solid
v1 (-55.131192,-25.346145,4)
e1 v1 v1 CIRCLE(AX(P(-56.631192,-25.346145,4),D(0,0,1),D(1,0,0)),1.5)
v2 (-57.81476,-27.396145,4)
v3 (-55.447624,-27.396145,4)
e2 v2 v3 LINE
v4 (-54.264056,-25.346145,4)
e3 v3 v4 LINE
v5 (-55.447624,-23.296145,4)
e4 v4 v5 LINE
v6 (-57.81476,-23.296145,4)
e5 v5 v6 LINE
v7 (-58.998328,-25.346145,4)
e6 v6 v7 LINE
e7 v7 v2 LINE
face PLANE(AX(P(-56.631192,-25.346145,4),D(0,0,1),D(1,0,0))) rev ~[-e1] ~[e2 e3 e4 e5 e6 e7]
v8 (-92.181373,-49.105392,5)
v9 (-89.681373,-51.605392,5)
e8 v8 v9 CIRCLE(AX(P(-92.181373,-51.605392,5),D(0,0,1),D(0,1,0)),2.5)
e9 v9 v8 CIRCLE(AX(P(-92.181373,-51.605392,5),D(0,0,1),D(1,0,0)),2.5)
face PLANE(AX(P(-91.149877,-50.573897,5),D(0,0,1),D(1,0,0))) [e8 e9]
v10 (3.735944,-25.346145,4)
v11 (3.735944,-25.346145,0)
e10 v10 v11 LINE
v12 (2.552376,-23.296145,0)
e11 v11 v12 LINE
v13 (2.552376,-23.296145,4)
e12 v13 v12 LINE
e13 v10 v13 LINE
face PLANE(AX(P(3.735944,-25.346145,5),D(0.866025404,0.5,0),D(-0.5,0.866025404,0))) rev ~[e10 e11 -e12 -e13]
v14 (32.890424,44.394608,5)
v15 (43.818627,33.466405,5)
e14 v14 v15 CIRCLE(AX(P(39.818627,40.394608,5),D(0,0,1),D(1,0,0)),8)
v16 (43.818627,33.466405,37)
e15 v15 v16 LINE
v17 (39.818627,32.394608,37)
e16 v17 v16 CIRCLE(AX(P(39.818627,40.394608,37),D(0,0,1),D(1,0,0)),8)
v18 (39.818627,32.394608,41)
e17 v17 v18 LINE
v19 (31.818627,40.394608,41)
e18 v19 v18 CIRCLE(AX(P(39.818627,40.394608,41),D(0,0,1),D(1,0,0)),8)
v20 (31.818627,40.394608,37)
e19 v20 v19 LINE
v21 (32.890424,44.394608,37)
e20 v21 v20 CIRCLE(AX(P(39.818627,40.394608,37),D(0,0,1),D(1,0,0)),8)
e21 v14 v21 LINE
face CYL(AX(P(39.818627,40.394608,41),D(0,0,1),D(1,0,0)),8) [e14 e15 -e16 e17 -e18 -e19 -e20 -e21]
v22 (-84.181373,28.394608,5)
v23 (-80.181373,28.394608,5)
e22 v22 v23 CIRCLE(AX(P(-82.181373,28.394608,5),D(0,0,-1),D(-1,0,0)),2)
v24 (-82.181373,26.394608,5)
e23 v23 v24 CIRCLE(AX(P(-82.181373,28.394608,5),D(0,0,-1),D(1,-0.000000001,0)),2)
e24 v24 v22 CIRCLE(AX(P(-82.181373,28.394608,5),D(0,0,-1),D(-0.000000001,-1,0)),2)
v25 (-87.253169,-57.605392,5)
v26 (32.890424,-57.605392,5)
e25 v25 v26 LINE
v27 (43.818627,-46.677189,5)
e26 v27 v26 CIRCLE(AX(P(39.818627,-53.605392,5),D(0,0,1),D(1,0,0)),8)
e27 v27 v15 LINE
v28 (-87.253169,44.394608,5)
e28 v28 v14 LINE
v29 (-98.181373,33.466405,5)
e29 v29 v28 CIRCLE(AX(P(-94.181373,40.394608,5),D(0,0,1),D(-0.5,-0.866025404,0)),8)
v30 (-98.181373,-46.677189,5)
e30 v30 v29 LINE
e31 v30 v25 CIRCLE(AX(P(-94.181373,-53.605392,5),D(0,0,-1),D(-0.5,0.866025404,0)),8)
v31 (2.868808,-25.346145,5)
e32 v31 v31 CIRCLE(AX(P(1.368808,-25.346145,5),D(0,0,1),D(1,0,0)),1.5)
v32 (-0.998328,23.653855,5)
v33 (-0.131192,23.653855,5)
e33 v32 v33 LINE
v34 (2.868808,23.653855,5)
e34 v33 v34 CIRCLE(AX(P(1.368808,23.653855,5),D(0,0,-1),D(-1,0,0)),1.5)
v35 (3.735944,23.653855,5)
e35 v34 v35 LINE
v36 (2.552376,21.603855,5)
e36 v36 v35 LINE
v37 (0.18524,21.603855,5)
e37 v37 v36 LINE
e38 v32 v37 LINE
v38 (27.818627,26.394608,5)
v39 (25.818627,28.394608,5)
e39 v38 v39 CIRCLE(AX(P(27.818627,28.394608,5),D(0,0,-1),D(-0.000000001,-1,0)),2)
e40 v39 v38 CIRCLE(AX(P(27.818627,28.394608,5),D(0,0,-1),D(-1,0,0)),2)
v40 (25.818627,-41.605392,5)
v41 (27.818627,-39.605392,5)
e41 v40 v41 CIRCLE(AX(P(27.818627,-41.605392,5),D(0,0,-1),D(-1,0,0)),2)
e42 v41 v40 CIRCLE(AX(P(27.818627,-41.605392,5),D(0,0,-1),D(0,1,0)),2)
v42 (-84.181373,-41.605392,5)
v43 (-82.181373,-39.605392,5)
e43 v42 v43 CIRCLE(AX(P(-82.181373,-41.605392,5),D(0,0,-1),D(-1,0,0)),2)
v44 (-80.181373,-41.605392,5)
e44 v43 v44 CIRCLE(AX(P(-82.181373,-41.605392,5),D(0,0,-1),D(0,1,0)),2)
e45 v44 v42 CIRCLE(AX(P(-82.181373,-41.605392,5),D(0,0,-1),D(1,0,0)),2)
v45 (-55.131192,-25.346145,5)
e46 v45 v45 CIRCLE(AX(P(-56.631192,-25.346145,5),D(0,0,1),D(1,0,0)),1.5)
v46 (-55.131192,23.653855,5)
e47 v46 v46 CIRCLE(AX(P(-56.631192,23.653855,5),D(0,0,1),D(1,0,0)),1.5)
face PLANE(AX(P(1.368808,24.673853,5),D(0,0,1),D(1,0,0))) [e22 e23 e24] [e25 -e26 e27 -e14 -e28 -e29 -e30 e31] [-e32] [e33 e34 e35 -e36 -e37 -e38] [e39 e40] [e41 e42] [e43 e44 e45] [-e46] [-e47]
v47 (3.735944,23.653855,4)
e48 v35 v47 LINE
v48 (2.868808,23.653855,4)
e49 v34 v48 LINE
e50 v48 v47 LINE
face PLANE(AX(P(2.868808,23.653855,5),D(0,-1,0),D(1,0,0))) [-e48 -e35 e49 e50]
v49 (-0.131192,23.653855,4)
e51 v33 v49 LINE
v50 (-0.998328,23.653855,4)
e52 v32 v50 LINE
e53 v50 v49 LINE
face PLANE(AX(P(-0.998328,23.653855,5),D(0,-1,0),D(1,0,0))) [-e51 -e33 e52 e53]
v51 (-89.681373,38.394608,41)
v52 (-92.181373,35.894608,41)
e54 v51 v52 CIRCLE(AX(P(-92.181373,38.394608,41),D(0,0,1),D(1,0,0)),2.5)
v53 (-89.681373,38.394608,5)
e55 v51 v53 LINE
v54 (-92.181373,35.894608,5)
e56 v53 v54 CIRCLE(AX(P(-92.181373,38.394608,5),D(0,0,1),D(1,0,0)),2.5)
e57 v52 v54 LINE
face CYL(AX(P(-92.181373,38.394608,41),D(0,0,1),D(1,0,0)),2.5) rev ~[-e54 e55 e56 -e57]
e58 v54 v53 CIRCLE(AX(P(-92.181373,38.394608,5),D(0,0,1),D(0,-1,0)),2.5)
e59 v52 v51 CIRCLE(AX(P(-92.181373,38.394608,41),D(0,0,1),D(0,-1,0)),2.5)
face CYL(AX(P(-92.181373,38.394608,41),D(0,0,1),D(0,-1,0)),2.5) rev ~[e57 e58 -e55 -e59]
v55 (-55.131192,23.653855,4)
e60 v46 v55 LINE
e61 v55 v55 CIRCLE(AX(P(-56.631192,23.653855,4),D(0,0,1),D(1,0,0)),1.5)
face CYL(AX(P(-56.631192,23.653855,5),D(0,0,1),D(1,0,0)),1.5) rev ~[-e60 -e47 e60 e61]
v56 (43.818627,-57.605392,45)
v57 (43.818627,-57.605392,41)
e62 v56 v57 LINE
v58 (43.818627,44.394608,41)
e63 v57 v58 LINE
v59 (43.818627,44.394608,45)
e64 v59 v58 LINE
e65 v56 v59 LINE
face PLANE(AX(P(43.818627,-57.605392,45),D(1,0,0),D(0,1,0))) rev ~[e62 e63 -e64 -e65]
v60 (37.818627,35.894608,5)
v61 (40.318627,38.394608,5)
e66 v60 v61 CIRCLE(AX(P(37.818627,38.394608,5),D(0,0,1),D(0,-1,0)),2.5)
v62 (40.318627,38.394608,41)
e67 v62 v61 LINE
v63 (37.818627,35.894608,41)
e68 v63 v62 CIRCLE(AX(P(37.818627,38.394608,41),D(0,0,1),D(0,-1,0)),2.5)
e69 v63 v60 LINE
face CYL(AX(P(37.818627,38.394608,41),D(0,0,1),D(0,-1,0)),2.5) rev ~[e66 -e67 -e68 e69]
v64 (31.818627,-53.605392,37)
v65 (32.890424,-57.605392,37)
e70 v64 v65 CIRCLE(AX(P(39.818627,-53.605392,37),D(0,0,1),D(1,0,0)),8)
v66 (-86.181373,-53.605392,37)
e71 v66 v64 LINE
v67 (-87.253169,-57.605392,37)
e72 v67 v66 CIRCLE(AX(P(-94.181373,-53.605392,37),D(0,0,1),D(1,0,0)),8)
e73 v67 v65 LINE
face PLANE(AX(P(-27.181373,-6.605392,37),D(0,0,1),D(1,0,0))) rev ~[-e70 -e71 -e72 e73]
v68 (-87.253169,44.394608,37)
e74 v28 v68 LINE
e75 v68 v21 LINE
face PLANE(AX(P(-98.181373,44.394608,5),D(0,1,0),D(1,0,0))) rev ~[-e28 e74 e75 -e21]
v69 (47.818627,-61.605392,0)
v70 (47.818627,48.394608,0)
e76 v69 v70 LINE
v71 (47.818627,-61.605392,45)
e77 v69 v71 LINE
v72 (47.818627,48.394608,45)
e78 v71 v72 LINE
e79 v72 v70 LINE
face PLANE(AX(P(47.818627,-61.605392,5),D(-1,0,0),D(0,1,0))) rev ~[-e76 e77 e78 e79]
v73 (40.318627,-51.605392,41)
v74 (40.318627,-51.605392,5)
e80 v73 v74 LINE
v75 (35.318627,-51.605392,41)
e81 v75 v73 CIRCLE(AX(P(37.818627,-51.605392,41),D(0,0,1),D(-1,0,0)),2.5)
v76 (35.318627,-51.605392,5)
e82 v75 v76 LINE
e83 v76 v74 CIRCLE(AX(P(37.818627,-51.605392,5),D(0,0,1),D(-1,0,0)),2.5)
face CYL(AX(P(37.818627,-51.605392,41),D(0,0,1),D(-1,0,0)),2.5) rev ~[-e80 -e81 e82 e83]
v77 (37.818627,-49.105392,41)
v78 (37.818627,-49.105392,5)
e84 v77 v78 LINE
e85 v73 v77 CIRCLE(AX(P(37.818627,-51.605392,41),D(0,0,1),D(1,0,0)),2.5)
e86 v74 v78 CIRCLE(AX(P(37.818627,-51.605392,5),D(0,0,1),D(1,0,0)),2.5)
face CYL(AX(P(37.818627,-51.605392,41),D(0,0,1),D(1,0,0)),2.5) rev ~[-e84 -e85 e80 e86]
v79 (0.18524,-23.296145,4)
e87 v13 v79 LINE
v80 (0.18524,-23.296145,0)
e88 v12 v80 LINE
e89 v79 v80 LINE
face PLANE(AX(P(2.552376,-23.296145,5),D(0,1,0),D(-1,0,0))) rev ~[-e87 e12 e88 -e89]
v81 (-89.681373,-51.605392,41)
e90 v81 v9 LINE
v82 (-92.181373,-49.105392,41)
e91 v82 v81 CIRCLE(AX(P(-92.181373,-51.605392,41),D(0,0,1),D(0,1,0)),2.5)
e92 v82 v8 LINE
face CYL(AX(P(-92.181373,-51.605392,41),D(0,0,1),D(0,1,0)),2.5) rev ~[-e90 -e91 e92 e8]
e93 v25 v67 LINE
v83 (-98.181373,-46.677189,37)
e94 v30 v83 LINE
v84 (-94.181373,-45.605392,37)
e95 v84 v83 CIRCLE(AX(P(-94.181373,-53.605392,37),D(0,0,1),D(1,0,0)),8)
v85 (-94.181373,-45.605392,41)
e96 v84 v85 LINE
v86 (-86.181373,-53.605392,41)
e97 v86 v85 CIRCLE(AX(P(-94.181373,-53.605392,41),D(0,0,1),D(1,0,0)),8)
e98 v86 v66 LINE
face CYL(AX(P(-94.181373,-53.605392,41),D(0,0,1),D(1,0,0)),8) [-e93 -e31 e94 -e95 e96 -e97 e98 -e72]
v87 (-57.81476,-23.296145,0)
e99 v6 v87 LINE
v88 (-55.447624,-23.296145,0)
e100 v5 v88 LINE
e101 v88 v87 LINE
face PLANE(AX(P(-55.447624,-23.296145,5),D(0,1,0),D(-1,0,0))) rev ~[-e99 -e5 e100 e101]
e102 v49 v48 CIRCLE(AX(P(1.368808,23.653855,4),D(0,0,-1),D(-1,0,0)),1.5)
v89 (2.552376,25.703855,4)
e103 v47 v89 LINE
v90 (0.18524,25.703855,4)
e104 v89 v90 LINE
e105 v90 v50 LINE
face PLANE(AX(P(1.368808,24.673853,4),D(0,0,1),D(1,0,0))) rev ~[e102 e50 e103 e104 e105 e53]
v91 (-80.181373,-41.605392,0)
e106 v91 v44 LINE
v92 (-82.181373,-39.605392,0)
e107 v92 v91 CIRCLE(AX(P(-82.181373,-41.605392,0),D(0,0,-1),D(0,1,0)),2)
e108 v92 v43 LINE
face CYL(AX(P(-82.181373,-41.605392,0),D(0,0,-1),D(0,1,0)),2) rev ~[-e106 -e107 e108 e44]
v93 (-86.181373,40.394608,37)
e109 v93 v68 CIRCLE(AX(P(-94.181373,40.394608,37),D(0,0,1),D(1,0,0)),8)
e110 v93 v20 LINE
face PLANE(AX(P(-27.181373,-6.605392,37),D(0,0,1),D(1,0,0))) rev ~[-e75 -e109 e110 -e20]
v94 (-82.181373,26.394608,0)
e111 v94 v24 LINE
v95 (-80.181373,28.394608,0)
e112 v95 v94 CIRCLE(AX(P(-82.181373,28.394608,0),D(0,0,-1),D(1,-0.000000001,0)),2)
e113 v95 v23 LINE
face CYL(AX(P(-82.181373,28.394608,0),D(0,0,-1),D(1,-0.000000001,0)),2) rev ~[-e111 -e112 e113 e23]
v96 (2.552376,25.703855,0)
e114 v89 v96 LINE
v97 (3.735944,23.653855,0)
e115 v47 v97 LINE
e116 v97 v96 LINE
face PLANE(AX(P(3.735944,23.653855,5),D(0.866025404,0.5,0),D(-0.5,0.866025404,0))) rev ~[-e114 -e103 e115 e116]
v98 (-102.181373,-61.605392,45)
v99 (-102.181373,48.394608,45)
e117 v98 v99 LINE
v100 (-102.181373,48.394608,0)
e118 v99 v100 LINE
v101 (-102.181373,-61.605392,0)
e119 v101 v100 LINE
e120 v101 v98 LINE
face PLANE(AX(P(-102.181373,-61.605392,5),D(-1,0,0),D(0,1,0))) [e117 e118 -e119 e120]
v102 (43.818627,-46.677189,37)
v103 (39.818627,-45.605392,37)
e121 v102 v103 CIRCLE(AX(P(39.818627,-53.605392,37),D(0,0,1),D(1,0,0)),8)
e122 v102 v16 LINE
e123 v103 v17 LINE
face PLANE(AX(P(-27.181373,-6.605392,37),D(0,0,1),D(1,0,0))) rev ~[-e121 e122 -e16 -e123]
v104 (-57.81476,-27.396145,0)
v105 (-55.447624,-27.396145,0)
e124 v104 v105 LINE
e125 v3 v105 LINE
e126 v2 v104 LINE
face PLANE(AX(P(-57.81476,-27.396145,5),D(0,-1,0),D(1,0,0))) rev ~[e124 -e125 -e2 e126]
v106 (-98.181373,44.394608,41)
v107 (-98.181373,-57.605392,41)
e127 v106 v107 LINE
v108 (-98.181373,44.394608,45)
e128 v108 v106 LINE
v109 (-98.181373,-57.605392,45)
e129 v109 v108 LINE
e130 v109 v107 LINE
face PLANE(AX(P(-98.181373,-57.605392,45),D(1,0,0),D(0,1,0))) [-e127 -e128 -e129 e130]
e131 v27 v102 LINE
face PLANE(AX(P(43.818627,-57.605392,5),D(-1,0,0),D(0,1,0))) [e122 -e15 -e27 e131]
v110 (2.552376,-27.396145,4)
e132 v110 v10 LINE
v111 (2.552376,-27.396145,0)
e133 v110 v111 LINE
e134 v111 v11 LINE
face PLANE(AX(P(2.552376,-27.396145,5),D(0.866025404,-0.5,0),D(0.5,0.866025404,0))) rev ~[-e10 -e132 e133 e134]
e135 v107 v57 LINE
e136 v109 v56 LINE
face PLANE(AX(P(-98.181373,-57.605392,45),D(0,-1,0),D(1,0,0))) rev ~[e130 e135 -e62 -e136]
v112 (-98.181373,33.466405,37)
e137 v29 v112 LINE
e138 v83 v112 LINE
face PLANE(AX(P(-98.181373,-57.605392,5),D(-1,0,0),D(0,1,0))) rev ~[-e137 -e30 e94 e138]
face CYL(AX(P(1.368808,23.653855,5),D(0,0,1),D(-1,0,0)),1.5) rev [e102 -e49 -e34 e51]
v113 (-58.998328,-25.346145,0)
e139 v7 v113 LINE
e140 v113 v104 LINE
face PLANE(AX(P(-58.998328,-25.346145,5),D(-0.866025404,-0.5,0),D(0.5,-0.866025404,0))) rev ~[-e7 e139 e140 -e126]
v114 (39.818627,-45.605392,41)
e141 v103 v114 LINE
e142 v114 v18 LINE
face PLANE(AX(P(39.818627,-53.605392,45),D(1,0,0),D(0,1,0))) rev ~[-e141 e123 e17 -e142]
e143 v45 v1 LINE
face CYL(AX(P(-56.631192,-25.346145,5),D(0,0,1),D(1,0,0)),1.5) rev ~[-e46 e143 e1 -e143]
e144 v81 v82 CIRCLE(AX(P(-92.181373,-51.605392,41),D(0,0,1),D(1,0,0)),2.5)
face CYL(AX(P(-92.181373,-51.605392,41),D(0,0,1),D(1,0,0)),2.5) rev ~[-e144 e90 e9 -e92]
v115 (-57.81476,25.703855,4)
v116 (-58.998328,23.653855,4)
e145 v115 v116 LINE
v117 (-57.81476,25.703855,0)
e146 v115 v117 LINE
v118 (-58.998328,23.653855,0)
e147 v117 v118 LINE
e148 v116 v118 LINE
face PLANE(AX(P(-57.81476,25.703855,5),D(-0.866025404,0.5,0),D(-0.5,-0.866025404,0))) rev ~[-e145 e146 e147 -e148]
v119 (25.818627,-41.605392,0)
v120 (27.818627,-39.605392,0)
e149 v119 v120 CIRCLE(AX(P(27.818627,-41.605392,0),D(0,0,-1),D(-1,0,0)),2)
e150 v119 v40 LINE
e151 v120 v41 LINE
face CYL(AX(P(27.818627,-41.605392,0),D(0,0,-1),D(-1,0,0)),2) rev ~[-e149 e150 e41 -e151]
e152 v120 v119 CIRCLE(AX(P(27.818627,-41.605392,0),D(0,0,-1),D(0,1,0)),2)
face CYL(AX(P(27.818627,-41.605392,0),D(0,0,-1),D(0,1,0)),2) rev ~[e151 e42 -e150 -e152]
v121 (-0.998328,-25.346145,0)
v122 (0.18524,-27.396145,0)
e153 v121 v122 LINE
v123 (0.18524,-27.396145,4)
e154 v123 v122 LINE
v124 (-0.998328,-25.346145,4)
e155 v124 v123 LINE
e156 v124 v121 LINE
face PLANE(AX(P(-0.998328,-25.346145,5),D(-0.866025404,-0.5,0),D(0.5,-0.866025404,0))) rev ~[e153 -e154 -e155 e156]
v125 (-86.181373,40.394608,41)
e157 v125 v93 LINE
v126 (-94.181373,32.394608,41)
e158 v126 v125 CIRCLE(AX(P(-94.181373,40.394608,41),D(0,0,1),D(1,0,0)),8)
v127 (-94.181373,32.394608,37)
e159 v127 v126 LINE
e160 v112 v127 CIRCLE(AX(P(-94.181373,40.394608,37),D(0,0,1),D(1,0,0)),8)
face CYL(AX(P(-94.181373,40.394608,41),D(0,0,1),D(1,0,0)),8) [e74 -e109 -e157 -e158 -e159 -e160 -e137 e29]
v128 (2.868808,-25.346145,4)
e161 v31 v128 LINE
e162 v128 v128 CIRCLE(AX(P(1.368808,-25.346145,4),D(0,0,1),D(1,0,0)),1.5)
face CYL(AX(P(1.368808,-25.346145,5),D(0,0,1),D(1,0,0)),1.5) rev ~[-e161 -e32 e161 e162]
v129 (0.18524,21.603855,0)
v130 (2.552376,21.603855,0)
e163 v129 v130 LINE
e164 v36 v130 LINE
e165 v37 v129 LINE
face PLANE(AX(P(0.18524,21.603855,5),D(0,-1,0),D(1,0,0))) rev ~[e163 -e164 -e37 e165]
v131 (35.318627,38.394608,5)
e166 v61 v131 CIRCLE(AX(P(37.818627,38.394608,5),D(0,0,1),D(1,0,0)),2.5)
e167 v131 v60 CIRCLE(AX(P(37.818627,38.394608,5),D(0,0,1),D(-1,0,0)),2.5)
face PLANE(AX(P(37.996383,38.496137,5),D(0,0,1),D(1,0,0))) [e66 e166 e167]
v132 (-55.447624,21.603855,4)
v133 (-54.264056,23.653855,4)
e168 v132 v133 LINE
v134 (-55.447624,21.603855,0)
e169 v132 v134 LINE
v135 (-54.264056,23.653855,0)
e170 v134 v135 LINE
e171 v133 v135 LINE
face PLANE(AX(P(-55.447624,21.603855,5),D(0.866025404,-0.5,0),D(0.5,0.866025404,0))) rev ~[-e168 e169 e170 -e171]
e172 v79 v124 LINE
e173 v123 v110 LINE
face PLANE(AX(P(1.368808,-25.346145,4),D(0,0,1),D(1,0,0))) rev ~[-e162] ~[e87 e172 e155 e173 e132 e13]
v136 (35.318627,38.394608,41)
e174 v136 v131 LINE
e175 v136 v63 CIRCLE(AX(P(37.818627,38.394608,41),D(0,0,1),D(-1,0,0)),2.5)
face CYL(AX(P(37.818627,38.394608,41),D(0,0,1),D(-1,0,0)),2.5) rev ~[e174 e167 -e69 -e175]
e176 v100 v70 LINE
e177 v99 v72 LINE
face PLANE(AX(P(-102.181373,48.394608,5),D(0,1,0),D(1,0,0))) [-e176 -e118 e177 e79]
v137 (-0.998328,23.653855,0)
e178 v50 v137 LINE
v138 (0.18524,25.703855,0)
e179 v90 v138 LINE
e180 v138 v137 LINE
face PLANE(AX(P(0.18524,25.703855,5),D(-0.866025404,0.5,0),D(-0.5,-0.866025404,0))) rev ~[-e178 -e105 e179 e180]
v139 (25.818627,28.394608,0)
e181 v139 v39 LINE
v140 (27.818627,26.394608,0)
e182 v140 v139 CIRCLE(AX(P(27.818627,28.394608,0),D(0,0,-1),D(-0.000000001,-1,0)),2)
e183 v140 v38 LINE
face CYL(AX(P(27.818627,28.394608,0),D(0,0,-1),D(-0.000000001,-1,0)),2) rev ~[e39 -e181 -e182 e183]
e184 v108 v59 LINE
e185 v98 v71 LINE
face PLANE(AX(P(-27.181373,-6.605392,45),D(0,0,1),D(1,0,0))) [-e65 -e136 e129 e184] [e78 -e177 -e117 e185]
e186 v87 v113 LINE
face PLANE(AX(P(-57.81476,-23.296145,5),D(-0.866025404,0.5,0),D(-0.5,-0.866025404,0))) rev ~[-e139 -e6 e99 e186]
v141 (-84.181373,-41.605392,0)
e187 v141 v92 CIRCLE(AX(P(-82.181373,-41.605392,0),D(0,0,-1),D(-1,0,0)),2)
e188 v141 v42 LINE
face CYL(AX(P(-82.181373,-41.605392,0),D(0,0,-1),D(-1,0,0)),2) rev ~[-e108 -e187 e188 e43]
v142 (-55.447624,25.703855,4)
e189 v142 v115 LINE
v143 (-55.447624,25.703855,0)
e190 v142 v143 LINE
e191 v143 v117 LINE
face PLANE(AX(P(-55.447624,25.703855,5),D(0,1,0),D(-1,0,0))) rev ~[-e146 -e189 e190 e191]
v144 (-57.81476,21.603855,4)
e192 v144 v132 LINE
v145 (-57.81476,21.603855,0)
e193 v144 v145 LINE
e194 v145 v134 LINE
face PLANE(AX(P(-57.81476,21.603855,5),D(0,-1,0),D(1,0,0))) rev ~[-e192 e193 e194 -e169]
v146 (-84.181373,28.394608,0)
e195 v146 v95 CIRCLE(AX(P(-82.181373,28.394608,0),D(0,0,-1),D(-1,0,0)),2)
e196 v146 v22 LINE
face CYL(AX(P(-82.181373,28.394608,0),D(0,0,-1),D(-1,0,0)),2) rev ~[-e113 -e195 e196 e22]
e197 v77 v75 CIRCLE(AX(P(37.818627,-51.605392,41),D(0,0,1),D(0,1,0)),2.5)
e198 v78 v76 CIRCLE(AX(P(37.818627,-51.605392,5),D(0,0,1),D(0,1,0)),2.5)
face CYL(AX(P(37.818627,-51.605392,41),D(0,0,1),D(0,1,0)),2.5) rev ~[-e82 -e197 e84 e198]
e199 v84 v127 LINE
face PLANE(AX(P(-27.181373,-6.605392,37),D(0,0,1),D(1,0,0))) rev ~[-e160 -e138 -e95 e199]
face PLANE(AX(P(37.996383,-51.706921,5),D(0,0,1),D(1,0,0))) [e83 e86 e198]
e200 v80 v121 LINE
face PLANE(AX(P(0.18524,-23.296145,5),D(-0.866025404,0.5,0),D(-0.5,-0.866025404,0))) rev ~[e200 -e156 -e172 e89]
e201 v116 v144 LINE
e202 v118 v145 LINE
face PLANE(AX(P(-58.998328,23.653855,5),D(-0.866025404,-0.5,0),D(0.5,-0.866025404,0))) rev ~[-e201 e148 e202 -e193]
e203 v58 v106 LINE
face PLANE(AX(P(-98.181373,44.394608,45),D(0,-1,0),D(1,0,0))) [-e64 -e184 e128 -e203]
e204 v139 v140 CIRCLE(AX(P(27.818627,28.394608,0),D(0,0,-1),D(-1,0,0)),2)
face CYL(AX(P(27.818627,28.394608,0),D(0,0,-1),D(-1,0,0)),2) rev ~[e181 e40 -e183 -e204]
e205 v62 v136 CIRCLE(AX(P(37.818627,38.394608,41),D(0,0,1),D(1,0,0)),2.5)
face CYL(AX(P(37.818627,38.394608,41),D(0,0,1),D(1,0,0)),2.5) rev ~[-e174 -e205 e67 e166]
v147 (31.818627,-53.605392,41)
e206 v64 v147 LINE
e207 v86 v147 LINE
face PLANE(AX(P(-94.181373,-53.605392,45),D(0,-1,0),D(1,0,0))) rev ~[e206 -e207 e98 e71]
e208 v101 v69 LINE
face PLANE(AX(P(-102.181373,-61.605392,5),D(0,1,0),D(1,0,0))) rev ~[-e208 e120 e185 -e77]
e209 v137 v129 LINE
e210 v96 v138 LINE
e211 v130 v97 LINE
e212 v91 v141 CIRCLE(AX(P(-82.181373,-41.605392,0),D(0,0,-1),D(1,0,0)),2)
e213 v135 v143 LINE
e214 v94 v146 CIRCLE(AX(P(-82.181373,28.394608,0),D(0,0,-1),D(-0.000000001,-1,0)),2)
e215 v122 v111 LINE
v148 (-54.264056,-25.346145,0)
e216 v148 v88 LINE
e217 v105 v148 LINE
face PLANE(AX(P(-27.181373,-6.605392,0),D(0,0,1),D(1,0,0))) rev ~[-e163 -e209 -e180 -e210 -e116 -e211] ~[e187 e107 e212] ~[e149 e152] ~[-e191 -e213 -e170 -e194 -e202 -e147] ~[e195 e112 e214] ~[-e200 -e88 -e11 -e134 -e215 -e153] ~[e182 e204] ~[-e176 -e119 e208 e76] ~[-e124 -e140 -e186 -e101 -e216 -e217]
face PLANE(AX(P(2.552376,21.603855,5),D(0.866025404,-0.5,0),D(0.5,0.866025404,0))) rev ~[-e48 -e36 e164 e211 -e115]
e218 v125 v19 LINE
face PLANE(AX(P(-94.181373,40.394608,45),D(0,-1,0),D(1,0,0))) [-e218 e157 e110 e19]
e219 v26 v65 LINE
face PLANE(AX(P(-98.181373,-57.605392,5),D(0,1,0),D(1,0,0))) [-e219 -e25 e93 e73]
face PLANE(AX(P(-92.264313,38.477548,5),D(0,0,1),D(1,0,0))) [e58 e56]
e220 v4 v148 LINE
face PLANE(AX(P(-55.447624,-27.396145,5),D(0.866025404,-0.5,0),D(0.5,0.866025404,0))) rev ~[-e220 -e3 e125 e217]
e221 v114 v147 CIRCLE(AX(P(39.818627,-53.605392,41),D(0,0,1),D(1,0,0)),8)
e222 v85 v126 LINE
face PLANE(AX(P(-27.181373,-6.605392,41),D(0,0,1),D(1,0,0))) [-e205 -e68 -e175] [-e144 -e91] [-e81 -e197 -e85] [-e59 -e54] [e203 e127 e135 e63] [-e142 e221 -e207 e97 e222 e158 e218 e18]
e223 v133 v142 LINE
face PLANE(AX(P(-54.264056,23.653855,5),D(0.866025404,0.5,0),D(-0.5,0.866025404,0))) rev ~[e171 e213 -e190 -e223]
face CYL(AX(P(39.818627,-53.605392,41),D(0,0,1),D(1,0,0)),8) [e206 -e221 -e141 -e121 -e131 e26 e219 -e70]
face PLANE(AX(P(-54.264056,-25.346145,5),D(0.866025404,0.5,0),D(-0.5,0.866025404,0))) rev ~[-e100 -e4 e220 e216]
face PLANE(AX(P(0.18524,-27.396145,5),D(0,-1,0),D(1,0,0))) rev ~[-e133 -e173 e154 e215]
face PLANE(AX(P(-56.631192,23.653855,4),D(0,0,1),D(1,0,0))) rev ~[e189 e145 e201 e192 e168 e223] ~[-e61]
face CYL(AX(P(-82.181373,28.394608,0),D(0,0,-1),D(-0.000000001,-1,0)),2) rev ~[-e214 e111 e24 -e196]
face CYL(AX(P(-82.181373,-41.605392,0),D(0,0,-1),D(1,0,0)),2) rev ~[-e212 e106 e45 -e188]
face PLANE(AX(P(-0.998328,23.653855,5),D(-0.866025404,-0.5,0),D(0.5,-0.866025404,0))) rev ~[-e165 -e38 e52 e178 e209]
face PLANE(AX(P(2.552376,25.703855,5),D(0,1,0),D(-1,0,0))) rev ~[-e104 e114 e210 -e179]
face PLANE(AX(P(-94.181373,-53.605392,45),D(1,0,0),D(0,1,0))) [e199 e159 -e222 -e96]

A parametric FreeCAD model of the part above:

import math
import FreeCAD as App
import Part
import Sketcher
from FreeCAD import Vector
Q = App.Units.Quantity

doc = App.newDocument("Part")
body = doc.addObject("PartDesign::Body", "Body")

sketch1 = doc.addObject("Sketcher::SketchObject", "Sketch")
body.addObject(sketch1)
sketch1.AttachmentSupport = (doc.XY_Plane, [""])
sketch1.MapMode = "FlatFace"
sketch1.addGeometry([
    Part.LineSegment(Vector(-102, 48, 0), Vector(-102, -62, 0)),
    Part.LineSegment(Vector(-102, -62, 0), Vector(48, -62, 0)),
    Part.LineSegment(Vector(48, -62, 0), Vector(48, 48, 0)),
    Part.LineSegment(Vector(48, 48, 0), Vector(-102, 48, 0)),
], False)
sketch1.addConstraint([
    Sketcher.Constraint("Coincident", 0, 2, 1, 1),
    Sketcher.Constraint("Coincident", 1, 2, 2, 1),
    Sketcher.Constraint("Coincident", 2, 2, 3, 1),
    Sketcher.Constraint("Coincident", 3, 2, 0, 1),
    Sketcher.Constraint("Vertical", 0),
    Sketcher.Constraint("Horizontal", 1),
    Sketcher.Constraint("Vertical", 2),
    Sketcher.Constraint("Horizontal", 3),
    Sketcher.Constraint("DistanceX", 1, 1, 1, 2, 150.0),
    Sketcher.Constraint("DistanceY", 0, 2, 0, 1, 110.0),
    Sketcher.Constraint("DistanceX", 0, 2, -1, 1, 102.181373),
    Sketcher.Constraint("DistanceY", 0, 2, -1, 1, 61.605392),
])
pad1 = doc.addObject("PartDesign::Pad", "Pad")
body.addObject(pad1)
pad1.Profile = sketch1
pad1.Length = 5

sketch2 = doc.addObject("Sketcher::SketchObject", "Sketch001")
body.addObject(sketch2)
sketch2.AttachmentSupport = (doc.XY_Plane, [""])
sketch2.MapMode = "FlatFace"
sketch2.AttachmentOffset = App.Placement(Vector(0, 0, 5), App.Rotation())
sketch2.addGeometry([
    Part.LineSegment(Vector(-102, 48, 0), Vector(-102, -62, 0)),
    Part.LineSegment(Vector(-102, -62, 0), Vector(48, -62, 0)),
    Part.LineSegment(Vector(48, -62, 0), Vector(48, 48, 0)),
    Part.LineSegment(Vector(48, 48, 0), Vector(-102, 48, 0)),
    Part.LineSegment(Vector(44, -58, 0), Vector(-98, -58, 0)),
    Part.LineSegment(Vector(-98, -58, 0), Vector(-98, 44, 0)),
    Part.LineSegment(Vector(-98, 44, 0), Vector(44, 44, 0)),
    Part.LineSegment(Vector(44, 44, 0), Vector(44, -58, 0)),
], False)
sketch2.addConstraint([
    Sketcher.Constraint("Coincident", 0, 2, 1, 1),
    Sketcher.Constraint("Coincident", 1, 2, 2, 1),
    Sketcher.Constraint("Coincident", 2, 2, 3, 1),
    Sketcher.Constraint("Coincident", 3, 2, 0, 1),
    Sketcher.Constraint("Coincident", 4, 2, 5, 1),
    Sketcher.Constraint("Coincident", 5, 2, 6, 1),
    Sketcher.Constraint("Coincident", 6, 2, 7, 1),
    Sketcher.Constraint("Coincident", 7, 2, 4, 1),
    Sketcher.Constraint("Vertical", 0),
    Sketcher.Constraint("Horizontal", 1),
    Sketcher.Constraint("Vertical", 2),
    Sketcher.Constraint("Horizontal", 3),
    Sketcher.Constraint("Horizontal", 4),
    Sketcher.Constraint("Vertical", 5),
    Sketcher.Constraint("Horizontal", 6),
    Sketcher.Constraint("Vertical", 7),
    Sketcher.Constraint("DistanceX", 1, 1, 1, 2, 150.0),
    Sketcher.Constraint("DistanceX", 4, 2, 4, 1, 142.0),
    Sketcher.Constraint("DistanceY", 0, 2, 0, 1, 110.0),
    Sketcher.Constraint("DistanceY", 5, 1, 5, 2, 102.0),
    Sketcher.Constraint("DistanceX", 0, 2, 4, 2, 4.0),
    Sketcher.Constraint("DistanceY", 0, 2, 4, 2, 4.0),
    Sketcher.Constraint("DistanceX", 0, 2, -1, 1, 102.181373),
    Sketcher.Constraint("DistanceY", 0, 2, -1, 1, 61.605392),
])
pad2 = doc.addObject("PartDesign::Pad", "Pad001")
body.addObject(pad2)
pad2.Profile = sketch2
pad2.Length = 40

sketch3 = doc.addObject("Sketcher::SketchObject", "Sketch002")
body.addObject(sketch3)
sketch3.AttachmentSupport = (doc.XY_Plane, [""])
sketch3.MapMode = "FlatFace"
sketch3.AttachmentOffset = App.Placement(Vector(0, 0, 5), App.Rotation())
sketch3.addGeometry([
    Part.LineSegment(Vector(-1, -25.3, 0), Vector(0.2, -27.4, 0)),
    Part.LineSegment(Vector(0.2, -27.4, 0), Vector(2.6, -27.4, 0)),
    Part.LineSegment(Vector(2.6, -27.4, 0), Vector(3.7, -25.3, 0)),
    Part.LineSegment(Vector(3.7, -25.3, 0), Vector(2.6, -23.3, 0)),
    Part.LineSegment(Vector(2.6, -23.3, 0), Vector(0.2, -23.3, 0)),
    Part.LineSegment(Vector(0.2, -23.3, 0), Vector(-1, -25.3, 0)),
    Part.LineSegment(Vector(-55.4, -27.4, 0), Vector(-54.3, -25.3, 0)),
    Part.LineSegment(Vector(-54.3, -25.3, 0), Vector(-55.4, -23.3, 0)),
    Part.LineSegment(Vector(-55.4, -23.3, 0), Vector(-57.8, -23.3, 0)),
    Part.LineSegment(Vector(-57.8, -23.3, 0), Vector(-59, -25.3, 0)),
    Part.LineSegment(Vector(-59, -25.3, 0), Vector(-57.8, -27.4, 0)),
    Part.LineSegment(Vector(-57.8, -27.4, 0), Vector(-55.4, -27.4, 0)),
    Part.LineSegment(Vector(0.2, 21.6, 0), Vector(2.6, 21.6, 0)),
    Part.LineSegment(Vector(2.6, 21.6, 0), Vector(3.7, 23.7, 0)),
    Part.LineSegment(Vector(3.7, 23.7, 0), Vector(2.6, 25.7, 0)),
    Part.LineSegment(Vector(2.6, 25.7, 0), Vector(0.2, 25.7, 0)),
    Part.LineSegment(Vector(0.2, 25.7, 0), Vector(-1, 23.7, 0)),
    Part.LineSegment(Vector(-1, 23.7, 0), Vector(0.2, 21.6, 0)),
    Part.LineSegment(Vector(-55.4, 21.6, 0), Vector(-54.3, 23.7, 0)),
    Part.LineSegment(Vector(-54.3, 23.7, 0), Vector(-55.4, 25.7, 0)),
    Part.LineSegment(Vector(-55.4, 25.7, 0), Vector(-57.8, 25.7, 0)),
    Part.LineSegment(Vector(-57.8, 25.7, 0), Vector(-59, 23.7, 0)),
    Part.LineSegment(Vector(-59, 23.7, 0), Vector(-57.8, 21.6, 0)),
    Part.LineSegment(Vector(-57.8, 21.6, 0), Vector(-55.4, 21.6, 0)),
], False)
sketch3.addConstraint([
    Sketcher.Constraint("Coincident", 0, 2, 1, 1),
    Sketcher.Constraint("Coincident", 1, 2, 2, 1),
    Sketcher.Constraint("Coincident", 2, 2, 3, 1),
    Sketcher.Constraint("Coincident", 3, 2, 4, 1),
    Sketcher.Constraint("Coincident", 4, 2, 5, 1),
    Sketcher.Constraint("Coincident", 5, 2, 0, 1),
    Sketcher.Constraint("Coincident", 6, 2, 7, 1),
    Sketcher.Constraint("Coincident", 7, 2, 8, 1),
    Sketcher.Constraint("Coincident", 8, 2, 9, 1),
    Sketcher.Constraint("Coincident", 9, 2, 10, 1),
    Sketcher.Constraint("Coincident", 10, 2, 11, 1),
    Sketcher.Constraint("Coincident", 11, 2, 6, 1),
    Sketcher.Constraint("Coincident", 12, 2, 13, 1),
    Sketcher.Constraint("Coincident", 13, 2, 14, 1),
    Sketcher.Constraint("Coincident", 14, 2, 15, 1),
    Sketcher.Constraint("Coincident", 15, 2, 16, 1),
    Sketcher.Constraint("Coincident", 16, 2, 17, 1),
    Sketcher.Constraint("Coincident", 17, 2, 12, 1),
    Sketcher.Constraint("Coincident", 18, 2, 19, 1),
    Sketcher.Constraint("Coincident", 19, 2, 20, 1),
    Sketcher.Constraint("Coincident", 20, 2, 21, 1),
    Sketcher.Constraint("Coincident", 21, 2, 22, 1),
    Sketcher.Constraint("Coincident", 22, 2, 23, 1),
    Sketcher.Constraint("Coincident", 23, 2, 18, 1),
    Sketcher.Constraint("Horizontal", 1),
    Sketcher.Constraint("Horizontal", 4),
    Sketcher.Constraint("Horizontal", 8),
    Sketcher.Constraint("Horizontal", 11),
    Sketcher.Constraint("Horizontal", 12),
    Sketcher.Constraint("Horizontal", 15),
    Sketcher.Constraint("Horizontal", 20),
    Sketcher.Constraint("Horizontal", 23),
    Sketcher.Constraint("Parallel", 0, 3),
    Sketcher.Constraint("Parallel", 2, 5),
    Sketcher.Constraint("Parallel", 5, 6),
    Sketcher.Constraint("Parallel", 3, 7),
    Sketcher.Constraint("Parallel", 6, 9),
    Sketcher.Constraint("Parallel", 7, 10),
    Sketcher.Constraint("Parallel", 9, 13),
    Sketcher.Constraint("Parallel", 10, 14),
    Sketcher.Constraint("Parallel", 13, 16),
    Sketcher.Constraint("Parallel", 14, 17),
    Sketcher.Constraint("Parallel", 16, 18),
    Sketcher.Constraint("Parallel", 17, 19),
    Sketcher.Constraint("Parallel", 18, 21),
    Sketcher.Constraint("Parallel", 19, 22),
    Sketcher.Constraint("Horizontal", 2, 2, 5, 2),
    Sketcher.Constraint("Horizontal", 5, 2, 6, 2),
    Sketcher.Constraint("Horizontal", 4, 2, 7, 2),
    Sketcher.Constraint("Horizontal", 6, 2, 9, 2),
    Sketcher.Constraint("Horizontal", 1, 2, 10, 2),
    Sketcher.Constraint("Horizontal", 13, 2, 16, 2),
    Sketcher.Constraint("Horizontal", 16, 2, 18, 2),
    Sketcher.Constraint("Horizontal", 15, 2, 19, 2),
    Sketcher.Constraint("Horizontal", 18, 2, 21, 2),
    Sketcher.Constraint("Horizontal", 17, 2, 22, 2),
    Sketcher.Constraint("Vertical", 1, 2, 3, 2),
    Sketcher.Constraint("Vertical", 0, 2, 4, 2),
    Sketcher.Constraint("Vertical", 3, 2, 12, 2),
    Sketcher.Constraint("Vertical", 2, 2, 13, 2),
    Sketcher.Constraint("Vertical", 12, 2, 14, 2),
    Sketcher.Constraint("Vertical", 4, 2, 15, 2),
    Sketcher.Constraint("Vertical", 6, 2, 18, 2),
    Sketcher.Constraint("Vertical", 10, 2, 20, 2),
    Sketcher.Constraint("Equal", 4, 8),
    Sketcher.Constraint("Angle", 0, Q("-60 deg")),
    Sketcher.Constraint("DistanceX", 7, 2, 3, 2, 58.0),
    Sketcher.Constraint("DistanceY", 1, 2, 12, 2, 49.0),
    Sketcher.Constraint("DistanceY", 1, 2, 3, 2, 4.1),
    Sketcher.Constraint("DistanceX", 1, 1, 1, 2, 2.367136),
    Sketcher.Constraint("DistanceX", -1, 1, 0, 2, 0.18524),
    Sketcher.Constraint("DistanceY", 0, 2, -1, 1, 27.396145),
])
pocket1 = doc.addObject("PartDesign::Pocket", "Pocket")
body.addObject(pocket1)
pocket1.Profile = sketch3
pocket1.Type = "ThroughAll"

sketch4 = doc.addObject("Sketcher::SketchObject", "Sketch003")
body.addObject(sketch4)
sketch4.AttachmentSupport = (doc.XY_Plane, [""])
sketch4.MapMode = "FlatFace"
sketch4.AttachmentOffset = App.Placement(Vector(0, 0, 45), App.Rotation())
sketch4.addGeometry([
    Part.LineSegment(Vector(-98, 44, 0), Vector(-98, -58, 0)),
    Part.LineSegment(Vector(-98, -58, 0), Vector(44, -58, 0)),
    Part.LineSegment(Vector(44, -58, 0), Vector(44, 44, 0)),
    Part.LineSegment(Vector(44, 44, 0), Vector(-98, 44, 0)),
    Part.LineSegment(Vector(40, -54, 0), Vector(-94, -54, 0)),
    Part.LineSegment(Vector(-94, -54, 0), Vector(-94, 40, 0)),
    Part.LineSegment(Vector(-94, 40, 0), Vector(40, 40, 0)),
    Part.LineSegment(Vector(40, 40, 0), Vector(40, -54, 0)),
], False)
sketch4.addConstraint([
    Sketcher.Constraint("Coincident", 0, 2, 1, 1),
    Sketcher.Constraint("Coincident", 1, 2, 2, 1),
    Sketcher.Constraint("Coincident", 2, 2, 3, 1),
    Sketcher.Constraint("Coincident", 3, 2, 0, 1),
    Sketcher.Constraint("Coincident", 4, 2, 5, 1),
    Sketcher.Constraint("Coincident", 5, 2, 6, 1),
    Sketcher.Constraint("Coincident", 6, 2, 7, 1),
    Sketcher.Constraint("Coincident", 7, 2, 4, 1),
    Sketcher.Constraint("Vertical", 0),
    Sketcher.Constraint("Horizontal", 1),
    Sketcher.Constraint("Vertical", 2),
    Sketcher.Constraint("Horizontal", 3),
    Sketcher.Constraint("Horizontal", 4),
    Sketcher.Constraint("Vertical", 5),
    Sketcher.Constraint("Horizontal", 6),
    Sketcher.Constraint("Vertical", 7),
    Sketcher.Constraint("DistanceX", 1, 1, 1, 2, 142.0),
    Sketcher.Constraint("DistanceX", 4, 2, 4, 1, 134.0),
    Sketcher.Constraint("DistanceY", 0, 2, 0, 1, 102.0),
    Sketcher.Constraint("DistanceY", 5, 1, 5, 2, 94.0),
    Sketcher.Constraint("DistanceX", 0, 2, 4, 2, 4.0),
    Sketcher.Constraint("DistanceY", 0, 2, 4, 2, 4.0),
    Sketcher.Constraint("DistanceX", 0, 2, -1, 1, 98.181373),
    Sketcher.Constraint("DistanceY", 0, 2, -1, 1, 57.605392),
])
pad3 = doc.addObject("PartDesign::Pad", "Pad002")
body.addObject(pad3)
pad3.Profile = sketch4
pad3.Length = 8
pad3.Reversed = True

sketch5 = doc.addObject("Sketcher::SketchObject", "Sketch004")
body.addObject(sketch5)
sketch5.AttachmentSupport = (doc.XY_Plane, [""])
sketch5.MapMode = "FlatFace"
sketch5.AttachmentOffset = App.Placement(Vector(0, 0, 45), App.Rotation())
sketch5.addGeometry([
    Part.LineSegment(Vector(-98, 44, 0), Vector(-98, -58, 0)),
    Part.LineSegment(Vector(-98, -58, 0), Vector(44, -58, 0)),
    Part.LineSegment(Vector(44, -58, 0), Vector(44, 44, 0)),
    Part.LineSegment(Vector(44, 44, 0), Vector(-98, 44, 0)),
    Part.LineSegment(Vector(40, -54, 0), Vector(-94, -54, 0)),
    Part.LineSegment(Vector(-94, -54, 0), Vector(-94, 40, 0)),
    Part.LineSegment(Vector(-94, 40, 0), Vector(40, 40, 0)),
    Part.LineSegment(Vector(40, 40, 0), Vector(40, -54, 0)),
], False)
sketch5.addConstraint([
    Sketcher.Constraint("Coincident", 0, 2, 1, 1),
    Sketcher.Constraint("Coincident", 1, 2, 2, 1),
    Sketcher.Constraint("Coincident", 2, 2, 3, 1),
    Sketcher.Constraint("Coincident", 3, 2, 0, 1),
    Sketcher.Constraint("Coincident", 4, 2, 5, 1),
    Sketcher.Constraint("Coincident", 5, 2, 6, 1),
    Sketcher.Constraint("Coincident", 6, 2, 7, 1),
    Sketcher.Constraint("Coincident", 7, 2, 4, 1),
    Sketcher.Constraint("Vertical", 0),
    Sketcher.Constraint("Horizontal", 1),
    Sketcher.Constraint("Vertical", 2),
    Sketcher.Constraint("Horizontal", 3),
    Sketcher.Constraint("Horizontal", 4),
    Sketcher.Constraint("Vertical", 5),
    Sketcher.Constraint("Horizontal", 6),
    Sketcher.Constraint("Vertical", 7),
    Sketcher.Constraint("DistanceX", 1, 1, 1, 2, 142.0),
    Sketcher.Constraint("DistanceX", 4, 2, 4, 1, 134.0),
    Sketcher.Constraint("DistanceY", 0, 2, 0, 1, 102.0),
    Sketcher.Constraint("DistanceY", 5, 1, 5, 2, 94.0),
    Sketcher.Constraint("DistanceX", 0, 2, 4, 2, 4.0),
    Sketcher.Constraint("DistanceY", 0, 2, 4, 2, 4.0),
    Sketcher.Constraint("DistanceX", 0, 2, -1, 1, 98.181373),
    Sketcher.Constraint("DistanceY", 0, 2, -1, 1, 57.605392),
])
pocket2 = doc.addObject("PartDesign::Pocket", "Pocket001")
body.addObject(pocket2)
pocket2.Profile = sketch5
pocket2.Length = 4

sketch6 = doc.addObject("Sketcher::SketchObject", "Sketch005")
body.addObject(sketch6)
sketch6.AttachmentSupport = (doc.XY_Plane, [""])
sketch6.MapMode = "FlatFace"
sketch6.AttachmentOffset = App.Placement(Vector(0, 0, 41), App.Rotation())
sketch6.addGeometry([
    Part.Circle(Vector(-94, 40, 0), Vector(0, 0, 1), 8),
    Part.Circle(Vector(-94, -54, 0), Vector(0, 0, 1), 8),
    Part.Circle(Vector(40, -54, 0), Vector(0, 0, 1), 8),
    Part.Circle(Vector(40, 40, 0), Vector(0, 0, 1), 8),
], False)
sketch6.addConstraint([
    Sketcher.Constraint("Equal", 0, 1),
    Sketcher.Constraint("Equal", 1, 2),
    Sketcher.Constraint("Equal", 2, 3),
    Sketcher.Constraint("Horizontal", 1, 3, 2, 3),
    Sketcher.Constraint("Horizontal", 0, 3, 3, 3),
    Sketcher.Constraint("Vertical", 0, 3, 1, 3),
    Sketcher.Constraint("Vertical", 2, 3, 3, 3),
    Sketcher.Constraint("Diameter", 0, 16.0),
    Sketcher.Constraint("DistanceY", 1, 3, 0, 3, 94.0),
    Sketcher.Constraint("DistanceX", 1, 3, 2, 3, 134.0),
    Sketcher.Constraint("DistanceX", 0, 3, -1, 1, 94.181373),
    Sketcher.Constraint("DistanceY", -1, 1, 0, 3, 40.394608),
])
pad4 = doc.addObject("PartDesign::Pad", "Pad003")
body.addObject(pad4)
pad4.Profile = sketch6
pad4.Length = 36
pad4.Reversed = True

sketch7 = doc.addObject("Sketcher::SketchObject", "Sketch006")
body.addObject(sketch7)
sketch7.AttachmentSupport = (doc.XY_Plane, [""])
sketch7.MapMode = "FlatFace"
sketch7.AttachmentOffset = App.Placement(Vector(0, 0, 41), App.Rotation())
sketch7.addGeometry([
    Part.ArcOfCircle(Part.Circle(Vector(-92.2, 38.4, 0), Vector(0, 0, 1), 2.5), math.radians(0), math.radians(270)),
    Part.ArcOfCircle(Part.Circle(Vector(-92.2, 38.4, 0), Vector(0, 0, 1), 2.5), math.radians(-90), math.radians(0)),
    Part.ArcOfCircle(Part.Circle(Vector(37.8, 38.4, 0), Vector(0, 0, 1), 2.5), math.radians(0), math.radians(180)),
    Part.ArcOfCircle(Part.Circle(Vector(37.8, 38.4, 0), Vector(0, 0, 1), 2.5), math.radians(180), math.radians(270)),
    Part.ArcOfCircle(Part.Circle(Vector(37.8, 38.4, 0), Vector(0, 0, 1), 2.5), math.radians(-90), math.radians(0)),
    Part.ArcOfCircle(Part.Circle(Vector(37.8, -51.6, 0), Vector(0, 0, 1), 2.5), math.radians(0), math.radians(90)),
    Part.ArcOfCircle(Part.Circle(Vector(37.8, -51.6, 0), Vector(0, 0, 1), 2.5), math.radians(90), math.radians(180)),
    Part.ArcOfCircle(Part.Circle(Vector(37.8, -51.6, 0), Vector(0, 0, 1), 2.5), math.radians(180), math.radians(360)),
    Part.ArcOfCircle(Part.Circle(Vector(-92.2, -51.6, 0), Vector(0, 0, 1), 2.5), math.radians(0), math.radians(90)),
    Part.ArcOfCircle(Part.Circle(Vector(-92.2, -51.6, 0), Vector(0, 0, 1), 2.5), math.radians(90), math.radians(360)),
], False)
sketch7.addConstraint([
    Sketcher.Constraint("Tangent", 0, 1, 1, 2),
    Sketcher.Constraint("Coincident", 1, 1, 0, 2),
    Sketcher.Constraint("Tangent", 2, 2, 3, 1),
    Sketcher.Constraint("Tangent", 3, 2, 4, 1),
    Sketcher.Constraint("Tangent", 4, 2, 2, 1),
    Sketcher.Constraint("Tangent", 5, 2, 6, 1),
    Sketcher.Constraint("Tangent", 6, 2, 7, 1),
    Sketcher.Constraint("Tangent", 7, 2, 5, 1),
    Sketcher.Constraint("Tangent", 8, 1, 9, 2),
    Sketcher.Constraint("Coincident", 9, 1, 8, 2),
    Sketcher.Constraint("Equal", 1, 2),
    Sketcher.Constraint("Equal", 4, 5),
    Sketcher.Constraint("Equal", 7, 8),
    Sketcher.Constraint("Horizontal", 1, 3, 2, 3),
    Sketcher.Constraint("Horizontal", 7, 3, 8, 3),
    Sketcher.Constraint("Horizontal", 4, 3, 0, 1),
    Sketcher.Constraint("Horizontal", 0, 1, 2, 2),
    Sketcher.Constraint("Horizontal", 2, 2, 4, 2),
    Sketcher.Constraint("Horizontal", 9, 3, 6, 2),
    Sketcher.Constraint("Horizontal", 6, 2, 7, 2),
    Sketcher.Constraint("Horizontal", 7, 2, 8, 1),
    Sketcher.Constraint("Vertical", 4, 3, 5, 3),
    Sketcher.Constraint("Vertical", 1, 3, 8, 3),
    Sketcher.Constraint("Vertical", 9, 3, 1, 1),
    Sketcher.Constraint("Vertical", 7, 3, 3, 2),
    Sketcher.Constraint("Vertical", 3, 2, 5, 2),
    Sketcher.Constraint("Vertical", 1, 1, 9, 1),
    Sketcher.Constraint("Radius", 0, 2.5),
    Sketcher.Constraint("DistanceX", 0, 3, 2, 3, 130.0),
    Sketcher.Constraint("DistanceY", 5, 3, 2, 3, 90.0),
    Sketcher.Constraint("DistanceX", 0, 3, -1, 1, 92.181373),
    Sketcher.Constraint("DistanceY", -1, 1, 0, 3, 38.394608),
])
pocket3 = doc.addObject("PartDesign::Pocket", "Pocket002")
body.addObject(pocket3)
pocket3.Profile = sketch7
pocket3.Length = 36

sketch8 = doc.addObject("Sketcher::SketchObject", "Sketch007")
body.addObject(sketch8)
sketch8.AttachmentSupport = (doc.XY_Plane, [""])
sketch8.MapMode = "FlatFace"
sketch8.addGeometry([
    Part.ArcOfCircle(Part.Circle(Vector(27.8, 28.4, 0), Vector(0, 0, 1), 2), math.radians(-90), math.radians(180)),
    Part.ArcOfCircle(Part.Circle(Vector(27.8, 28.4, 0), Vector(0, 0, 1), 2), math.radians(-180), math.radians(-90)),
    Part.ArcOfCircle(Part.Circle(Vector(27.8, -41.6, 0), Vector(0, 0, 1), 2), math.radians(90), math.radians(180)),
    Part.ArcOfCircle(Part.Circle(Vector(27.8, -41.6, 0), Vector(0, 0, 1), 2), math.radians(180), math.radians(450)),
    Part.ArcOfCircle(Part.Circle(Vector(-82.2, -41.6, 0), Vector(0, 0, 1), 2), math.radians(90), math.radians(180)),
    Part.ArcOfCircle(Part.Circle(Vector(-82.2, -41.6, 0), Vector(0, 0, 1), 2), math.radians(0), math.radians(90)),
    Part.ArcOfCircle(Part.Circle(Vector(-82.2, -41.6, 0), Vector(0, 0, 1), 2), math.radians(180), math.radians(360)),
    Part.ArcOfCircle(Part.Circle(Vector(-82.2, 28.4, 0), Vector(0, 0, 1), 2), math.radians(0), math.radians(180)),
    Part.ArcOfCircle(Part.Circle(Vector(-82.2, 28.4, 0), Vector(0, 0, 1), 2), math.radians(-90), math.radians(0)),
    Part.ArcOfCircle(Part.Circle(Vector(-82.2, 28.4, 0), Vector(0, 0, 1), 2), math.radians(-180), math.radians(-90)),
], False)
sketch8.addConstraint([
    Sketcher.Constraint("Tangent", 0, 1, 1, 2),
    Sketcher.Constraint("Coincident", 1, 1, 0, 2),
    Sketcher.Constraint("Tangent", 2, 1, 3, 2),
    Sketcher.Constraint("Coincident", 3, 1, 2, 2),
    Sketcher.Constraint("Tangent", 4, 1, 5, 2),
    Sketcher.Constraint("Tangent", 5, 1, 6, 2),
    Sketcher.Constraint("Tangent", 6, 1, 4, 2),
    Sketcher.Constraint("Tangent", 7, 1, 8, 2),
    Sketcher.Constraint("Tangent", 8, 1, 9, 2),
    Sketcher.Constraint("Tangent", 9, 1, 7, 2),
    Sketcher.Constraint("Equal", 1, 2),
    Sketcher.Constraint("Equal", 3, 4),
    Sketcher.Constraint("Equal", 6, 7),
    Sketcher.Constraint("Horizontal", 3, 3, 4, 3),
    Sketcher.Constraint("Horizontal", 1, 3, 7, 3),
    Sketcher.Constraint("Horizontal", 9, 3, 1, 1),
    Sketcher.Constraint("Horizontal", 6, 3, 3, 1),
    Sketcher.Constraint("Horizontal", 3, 1, 5, 1),
    Sketcher.Constraint("Horizontal", 5, 1, 6, 1),
    Sketcher.Constraint("Horizontal", 1, 1, 7, 1),
    Sketcher.Constraint("Horizontal", 7, 1, 9, 1),
    Sketcher.Constraint("Vertical", 1, 3, 2, 3),
    Sketcher.Constraint("Vertical", 6, 3, 7, 3),
    Sketcher.Constraint("Vertical", 3, 3, 0, 1),
    Sketcher.Constraint("Vertical", 0, 1, 2, 1),
    Sketcher.Constraint("Vertical", 9, 3, 4, 1),
    Sketcher.Constraint("Vertical", 4, 1, 8, 1),
    Sketcher.Constraint("Radius", 0, 2.0),
    Sketcher.Constraint("DistanceY", 2, 3, 0, 3, 70.0),
    Sketcher.Constraint("DistanceX", 4, 3, 2, 3, 110.0),
    Sketcher.Constraint("DistanceX", -1, 1, 0, 3, 27.818627),
    Sketcher.Constraint("DistanceY", -1, 1, 0, 3, 28.394608),
])
pocket4 = doc.addObject("PartDesign::Pocket", "Pocket003")
body.addObject(pocket4)
pocket4.Profile = sketch8
pocket4.Type = "ThroughAll"
pocket4.Reversed = True

sketch9 = doc.addObject("Sketcher::SketchObject", "Sketch008")
body.addObject(sketch9)
sketch9.AttachmentSupport = (doc.XY_Plane, [""])
sketch9.MapMode = "FlatFace"
sketch9.AttachmentOffset = App.Placement(Vector(0, 0, 5), App.Rotation())
sketch9.addGeometry([
    Part.ArcOfCircle(Part.Circle(Vector(1.4, 23.7, 0), Vector(0, 0, 1), 1.5), math.radians(0), math.radians(180)),
    Part.LineSegment(Vector(2.9, 23.7, 0), Vector(3.7, 23.7, 0)),
    Part.LineSegment(Vector(3.7, 23.7, 0), Vector(2.6, 25.7, 0)),
    Part.LineSegment(Vector(2.6, 25.7, 0), Vector(0.2, 25.7, 0)),
    Part.LineSegment(Vector(0.2, 25.7, 0), Vector(-1, 23.7, 0)),
    Part.LineSegment(Vector(-1, 23.7, 0), Vector(-0.1, 23.7, 0)),
    Part.LineSegment(Vector(-54.3, 23.7, 0), Vector(-55.4, 25.7, 0)),
    Part.LineSegment(Vector(-55.4, 25.7, 0), Vector(-57.8, 25.7, 0)),
    Part.LineSegment(Vector(-57.8, 25.7, 0), Vector(-59, 23.7, 0)),
    Part.LineSegment(Vector(-59, 23.7, 0), Vector(-57.8, 21.6, 0)),
    Part.LineSegment(Vector(-57.8, 21.6, 0), Vector(-55.4, 21.6, 0)),
    Part.LineSegment(Vector(-55.4, 21.6, 0), Vector(-54.3, 23.7, 0)),
    Part.Circle(Vector(-56.6, 23.7, 0), Vector(0, 0, 1), 1.5),
    Part.LineSegment(Vector(-54.3, -25.3, 0), Vector(-55.4, -23.3, 0)),
    Part.LineSegment(Vector(-55.4, -23.3, 0), Vector(-57.8, -23.3, 0)),
    Part.LineSegment(Vector(-57.8, -23.3, 0), Vector(-59, -25.3, 0)),
    Part.LineSegment(Vector(-59, -25.3, 0), Vector(-57.8, -27.4, 0)),
    Part.LineSegment(Vector(-57.8, -27.4, 0), Vector(-55.4, -27.4, 0)),
    Part.LineSegment(Vector(-55.4, -27.4, 0), Vector(-54.3, -25.3, 0)),
    Part.Circle(Vector(-56.6, -25.3, 0), Vector(0, 0, 1), 1.5),
    Part.LineSegment(Vector(3.7, -25.3, 0), Vector(2.6, -23.3, 0)),
    Part.LineSegment(Vector(2.6, -23.3, 0), Vector(0.2, -23.3, 0)),
    Part.LineSegment(Vector(0.2, -23.3, 0), Vector(-1, -25.3, 0)),
    Part.LineSegment(Vector(-1, -25.3, 0), Vector(0.2, -27.4, 0)),
    Part.LineSegment(Vector(0.2, -27.4, 0), Vector(2.6, -27.4, 0)),
    Part.LineSegment(Vector(2.6, -27.4, 0), Vector(3.7, -25.3, 0)),
    Part.Circle(Vector(1.4, -25.3, 0), Vector(0, 0, 1), 1.5),
], False)
sketch9.addConstraint([
    Sketcher.Constraint("Coincident", 0, 1, 1, 1),
    Sketcher.Constraint("Coincident", 1, 2, 2, 1),
    Sketcher.Constraint("Coincident", 2, 2, 3, 1),
    Sketcher.Constraint("Coincident", 3, 2, 4, 1),
    Sketcher.Constraint("Coincident", 4, 2, 5, 1),
    Sketcher.Constraint("Coincident", 5, 2, 0, 2),
    Sketcher.Constraint("Coincident", 6, 2, 7, 1),
    Sketcher.Constraint("Coincident", 7, 2, 8, 1),
    Sketcher.Constraint("Coincident", 8, 2, 9, 1),
    Sketcher.Constraint("Coincident", 9, 2, 10, 1),
    Sketcher.Constraint("Coincident", 10, 2, 11, 1),
    Sketcher.Constraint("Coincident", 11, 2, 6, 1),
    Sketcher.Constraint("Coincident", 13, 2, 14, 1),
    Sketcher.Constraint("Coincident", 14, 2, 15, 1),
    Sketcher.Constraint("Coincident", 15, 2, 16, 1),
    Sketcher.Constraint("Coincident", 16, 2, 17, 1),
    Sketcher.Constraint("Coincident", 17, 2, 18, 1),
    Sketcher.Constraint("Coincident", 18, 2, 13, 1),
    Sketcher.Constraint("Coincident", 20, 2, 21, 1),
    Sketcher.Constraint("Coincident", 21, 2, 22, 1),
    Sketcher.Constraint("Coincident", 22, 2, 23, 1),
    Sketcher.Constraint("Coincident", 23, 2, 24, 1),
    Sketcher.Constraint("Coincident", 24, 2, 25, 1),
    Sketcher.Constraint("Coincident", 25, 2, 20, 1),
    Sketcher.Constraint("Horizontal", 1),
    Sketcher.Constraint("Horizontal", 3),
    Sketcher.Constraint("Horizontal", 5),
    Sketcher.Constraint("Horizontal", 7),
    Sketcher.Constraint("Horizontal", 10),
    Sketcher.Constraint("Horizontal", 14),
    Sketcher.Constraint("Horizontal", 17),
    Sketcher.Constraint("Horizontal", 21),
    Sketcher.Constraint("Horizontal", 24),
    Sketcher.Constraint("Equal", 0, 12),
    Sketcher.Constraint("Equal", 12, 19),
    Sketcher.Constraint("Equal", 19, 26),
    Sketcher.Constraint("Parallel", 2, 6),
    Sketcher.Constraint("Parallel", 4, 8),
    Sketcher.Constraint("Parallel", 6, 9),
    Sketcher.Constraint("Parallel", 8, 11),
    Sketcher.Constraint("Parallel", 9, 13),
    Sketcher.Constraint("Parallel", 11, 15),
    Sketcher.Constraint("Parallel", 13, 16),
    Sketcher.Constraint("Parallel", 15, 18),
    Sketcher.Constraint("Parallel", 16, 20),
    Sketcher.Constraint("Parallel", 18, 22),
    Sketcher.Constraint("Parallel", 20, 23),
    Sketcher.Constraint("Parallel", 22, 25),
    Sketcher.Constraint("Horizontal", 0, 3, 12, 3),
    Sketcher.Constraint("Horizontal", 19, 3, 26, 3),
    Sketcher.Constraint("Horizontal", 12, 3, 0, 1),
    Sketcher.Constraint("Horizontal", 1, 2, 4, 2),
    Sketcher.Constraint("Horizontal", 3, 2, 6, 2),
    Sketcher.Constraint("Horizontal", 5, 2, 8, 2),
    Sketcher.Constraint("Horizontal", 8, 2, 11, 2),
    Sketcher.Constraint("Horizontal", 26, 3, 15, 2),
    Sketcher.Constraint("Horizontal", 15, 2, 18, 2),
    Sketcher.Constraint("Horizontal", 14, 2, 20, 2),
    Sketcher.Constraint("Horizontal", 18, 2, 22, 2),
    Sketcher.Constraint("Horizontal", 17, 2, 23, 2),
    Sketcher.Constraint("Horizontal", 22, 2, 25, 2),
    Sketcher.Constraint("Vertical", 12, 3, 19, 3),
    Sketcher.Constraint("Vertical", 0, 3, 26, 3),
    Sketcher.Constraint("Vertical", 7, 2, 9, 2),
    Sketcher.Constraint("Vertical", 6, 2, 10, 2),
    Sketcher.Constraint("Vertical", 10, 2, 13, 2),
    Sketcher.Constraint("Vertical", 9, 2, 14, 2),
    Sketcher.Constraint("Vertical", 8, 2, 15, 2),
    Sketcher.Constraint("Vertical", 14, 2, 16, 2),
    Sketcher.Constraint("Vertical", 2, 2, 20, 2),
    Sketcher.Constraint("Vertical", 3, 2, 21, 2),
    Sketcher.Constraint("Equal", 1, 5),
    Sketcher.Constraint("Equal", 3, 7),
    Sketcher.Constraint("Diameter", 12, 3.0),
    Sketcher.Constraint("Angle", 2, Q("120 deg")),
    Sketcher.Constraint("DistanceX", 12, 3, 0, 3, 58.0),
    Sketcher.Constraint("DistanceY", 19, 3, 12, 3, 49.0),
    Sketcher.Constraint("DistanceX", 8, 2, 4, 2, 58.0),
    Sketcher.Constraint("DistanceY", 9, 2, 7, 2, 4.1),
    Sketcher.Constraint("DistanceX", 1, 1, 1, 2, 0.867136),
    Sketcher.Constraint("DistanceX", -1, 1, 3, 2, 0.18524),
    Sketcher.Constraint("DistanceY", -1, 1, 0, 3, 23.653855),
])
pad5 = doc.addObject("PartDesign::Pad", "Pad004")
body.addObject(pad5)
pad5.Profile = sketch9
pad5.Length = 1
pad5.Reversed = True

doc.recompute()
